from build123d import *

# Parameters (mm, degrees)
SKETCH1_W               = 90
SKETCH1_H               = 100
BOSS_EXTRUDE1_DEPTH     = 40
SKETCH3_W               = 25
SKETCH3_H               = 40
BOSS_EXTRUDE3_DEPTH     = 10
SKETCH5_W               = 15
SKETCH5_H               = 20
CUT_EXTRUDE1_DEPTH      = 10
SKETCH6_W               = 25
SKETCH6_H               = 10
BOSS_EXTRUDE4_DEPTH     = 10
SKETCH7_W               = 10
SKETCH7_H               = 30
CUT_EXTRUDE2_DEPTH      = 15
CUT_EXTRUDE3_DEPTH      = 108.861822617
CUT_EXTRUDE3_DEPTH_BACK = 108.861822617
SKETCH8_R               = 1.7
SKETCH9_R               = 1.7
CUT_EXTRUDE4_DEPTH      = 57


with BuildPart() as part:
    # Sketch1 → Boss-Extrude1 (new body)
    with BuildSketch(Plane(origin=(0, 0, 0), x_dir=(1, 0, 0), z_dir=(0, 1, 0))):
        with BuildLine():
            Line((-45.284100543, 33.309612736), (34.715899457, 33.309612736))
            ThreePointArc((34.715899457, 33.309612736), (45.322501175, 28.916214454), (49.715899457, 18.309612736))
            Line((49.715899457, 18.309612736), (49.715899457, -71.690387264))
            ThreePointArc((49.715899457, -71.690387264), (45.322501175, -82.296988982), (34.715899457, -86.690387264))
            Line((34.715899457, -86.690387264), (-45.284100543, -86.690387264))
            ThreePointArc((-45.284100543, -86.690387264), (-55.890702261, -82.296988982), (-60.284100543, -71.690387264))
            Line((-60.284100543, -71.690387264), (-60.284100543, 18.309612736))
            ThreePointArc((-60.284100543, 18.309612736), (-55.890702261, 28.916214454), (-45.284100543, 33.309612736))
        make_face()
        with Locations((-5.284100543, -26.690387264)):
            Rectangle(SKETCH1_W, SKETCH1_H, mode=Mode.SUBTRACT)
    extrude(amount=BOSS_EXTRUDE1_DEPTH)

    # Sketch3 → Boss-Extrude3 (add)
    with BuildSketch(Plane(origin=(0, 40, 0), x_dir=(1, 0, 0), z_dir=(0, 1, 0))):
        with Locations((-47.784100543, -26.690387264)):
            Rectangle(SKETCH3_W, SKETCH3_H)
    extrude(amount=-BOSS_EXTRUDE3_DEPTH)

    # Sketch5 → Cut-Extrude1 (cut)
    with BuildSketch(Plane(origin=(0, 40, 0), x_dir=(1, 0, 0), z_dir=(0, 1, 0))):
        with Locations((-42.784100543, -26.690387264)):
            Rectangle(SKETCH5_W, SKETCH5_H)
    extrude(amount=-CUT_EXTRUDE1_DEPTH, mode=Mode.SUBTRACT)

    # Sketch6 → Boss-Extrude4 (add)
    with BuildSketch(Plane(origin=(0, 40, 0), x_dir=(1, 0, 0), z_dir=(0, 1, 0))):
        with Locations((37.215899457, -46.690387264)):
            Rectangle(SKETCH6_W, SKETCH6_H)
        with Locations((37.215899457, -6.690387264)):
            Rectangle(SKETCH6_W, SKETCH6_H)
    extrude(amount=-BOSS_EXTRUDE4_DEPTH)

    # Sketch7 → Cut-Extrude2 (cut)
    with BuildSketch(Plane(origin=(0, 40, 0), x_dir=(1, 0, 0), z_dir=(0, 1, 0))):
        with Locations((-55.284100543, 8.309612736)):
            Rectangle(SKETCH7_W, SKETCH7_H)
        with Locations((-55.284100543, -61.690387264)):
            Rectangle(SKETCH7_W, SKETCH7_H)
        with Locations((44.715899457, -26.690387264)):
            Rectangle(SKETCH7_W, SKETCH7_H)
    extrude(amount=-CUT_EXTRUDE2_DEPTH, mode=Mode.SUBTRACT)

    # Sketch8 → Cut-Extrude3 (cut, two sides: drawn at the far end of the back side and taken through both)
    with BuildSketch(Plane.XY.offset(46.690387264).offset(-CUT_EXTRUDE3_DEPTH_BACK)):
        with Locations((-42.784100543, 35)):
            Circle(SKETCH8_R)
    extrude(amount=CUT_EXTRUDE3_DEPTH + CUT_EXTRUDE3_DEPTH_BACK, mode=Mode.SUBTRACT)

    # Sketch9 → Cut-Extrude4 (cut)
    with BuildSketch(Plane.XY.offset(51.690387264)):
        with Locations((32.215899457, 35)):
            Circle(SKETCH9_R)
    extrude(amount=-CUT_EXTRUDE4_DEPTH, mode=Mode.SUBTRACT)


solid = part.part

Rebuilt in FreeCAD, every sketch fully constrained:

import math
import FreeCAD as App
import Part
import Sketcher

V = App.Vector
Q = App.Units.Quantity

doc = App.newDocument("Part")
params = doc.addObject("Spreadsheet::Sheet", "Params")
for row, (alias, value) in enumerate([
    ("sketch1_radius", "15 mm"),
    ("sketch1_width", "80 mm"),
    ("sketch1_width2", "90 mm"),
    ("sketch1_height", "100 mm"),
    ("pad1_length", "40 mm"),
    ("sketch2_width", "25 mm"),
    ("sketch2_height", "40 mm"),
    ("pad2_length", "10 mm"),
    ("sketch3_width", "15 mm"),
    ("sketch3_height", "20 mm"),
    ("pocket1_length", "10 mm"),
    ("sketch4_width", "25 mm"),
    ("sketch4_height", "10 mm"),
    ("pad3_length", "10 mm"),
    ("sketch5_width", "10 mm"),
    ("sketch5_height", "30 mm"),
    ("pocket2_length", "15 mm"),
    ("sketch6_diameter", "3.4 mm"),
    ("sketch7_diameter", "3.4 mm"),
    ("pocket4_length", "57 mm"),
], start=1):
    params.set(f"A{row}", alias)
    params.set(f"B{row}", "=" + value)
    params.setAlias(f"B{row}", alias)

body = doc.addObject("PartDesign::Body", "Body")

# Sketch on XZ plane
sketch1 = body.newObject("Sketcher::SketchObject", "Sketch")
sketch1.AttachmentSupport = (doc.getObject("XZ_Plane"), [""])
sketch1.MapMode = "FlatFace"
sketch1.addGeometry([
    Part.LineSegment(V(34.715899, -33.309613, 0), V(-45.284101, -33.309613, 0)),  # 0
    Part.ArcOfCircle(Part.Circle(V(-45.284101, -18.309613, 0), V(0, 0, 1), 15), math.radians(180), math.radians(270)),  # 1
    Part.LineSegment(V(-60.284101, -18.309613, 0), V(-60.284101, 71.690387, 0)),  # 2
    Part.ArcOfCircle(Part.Circle(V(-45.284101, 71.690387, 0), V(0, 0, 1), 15), math.radians(90), math.radians(180)),  # 3
    Part.LineSegment(V(-45.284101, 86.690387, 0), V(34.715899, 86.690387, 0)),  # 4
    Part.ArcOfCircle(Part.Circle(V(34.715899, 71.690387, 0), V(0, 0, 1), 15), math.radians(0), math.radians(90)),  # 5
    Part.LineSegment(V(49.715899, 71.690387, 0), V(49.715899, -18.309613, 0)),  # 6
    Part.ArcOfCircle(Part.Circle(V(34.715899, -18.309613, 0), V(0, 0, 1), 15), math.radians(-90), math.radians(0)),  # 7
    Part.LineSegment(V(-50.284101, 76.690387, 0), V(-50.284101, -23.309613, 0)),  # 8
    Part.LineSegment(V(-50.284101, -23.309613, 0), V(39.715899, -23.309613, 0)),  # 9
    Part.LineSegment(V(39.715899, -23.309613, 0), V(39.715899, 76.690387, 0)),  # 10
    Part.LineSegment(V(39.715899, 76.690387, 0), V(-50.284101, 76.690387, 0)),  # 11
], False)
sketch1.addConstraint([
    Sketcher.Constraint("Tangent", 0, 2, 1, 2),
    Sketcher.Constraint("Tangent", 1, 1, 2, 1),
    Sketcher.Constraint("Tangent", 2, 2, 3, 2),
    Sketcher.Constraint("Tangent", 3, 1, 4, 1),
    Sketcher.Constraint("Tangent", 4, 2, 5, 2),
    Sketcher.Constraint("Tangent", 5, 1, 6, 1),
    Sketcher.Constraint("Tangent", 6, 2, 7, 2),
    Sketcher.Constraint("Tangent", 7, 1, 0, 1),
    Sketcher.Constraint("Coincident", 8, 2, 9, 1),
    Sketcher.Constraint("Coincident", 9, 2, 10, 1),
    Sketcher.Constraint("Coincident", 10, 2, 11, 1),
    Sketcher.Constraint("Coincident", 11, 2, 8, 1),
    Sketcher.Constraint("Horizontal", 0),
    Sketcher.Constraint("Vertical", 2),
    Sketcher.Constraint("Horizontal", 4),
    Sketcher.Constraint("Vertical", 6),
    Sketcher.Constraint("Vertical", 8),
    Sketcher.Constraint("Horizontal", 9),
    Sketcher.Constraint("Vertical", 10),
    Sketcher.Constraint("Horizontal", 11),
    Sketcher.Constraint("Equal", 1, 3),
    Sketcher.Constraint("Equal", 3, 5),
    Sketcher.Constraint("Equal", 5, 7),
    Sketcher.Constraint("Equal", 11, 2),
    Sketcher.Constraint("Radius", 1, Q("15 mm")),
    Sketcher.Constraint("DistanceX", 0, 2, 0, 1, Q("80 mm")),
    Sketcher.Constraint("DistanceX", 9, 1, 9, 2, Q("90 mm")),
    Sketcher.Constraint("DistanceY", 8, 2, 8, 1, Q("100 mm")),
    Sketcher.Constraint("DistanceX", 8, 2, 1, 3, Q("5 mm")),
    Sketcher.Constraint("DistanceY", 8, 2, 1, 3, Q("5 mm")),
    Sketcher.Constraint("DistanceX", 1, 3, -1, 1, Q("45.284101 mm")),
    Sketcher.Constraint("DistanceY", 1, 3, -1, 1, Q("18.309613 mm")),
])
sketch1.setExpression("Constraints[24]", "Params.sketch1_radius")
sketch1.setExpression("Constraints[25]", "Params.sketch1_width")
sketch1.setExpression("Constraints[26]", "Params.sketch1_width2")
sketch1.setExpression("Constraints[27]", "Params.sketch1_height")
pad1 = body.newObject("PartDesign::Pad", "Pad")
pad1.Profile = sketch1
pad1.setExpression("Length", "Params.pad1_length")
pad1.Reversed = True

# Sketch on XZ plane
sketch2 = body.newObject("Sketcher::SketchObject", "Sketch001")
sketch2.AttachmentSupport = (doc.getObject("XZ_Plane"), [""])
sketch2.MapMode = "FlatFace"
sketch2.AttachmentOffset = App.Placement(V(0, 0, -40), App.Rotation())
sketch2.addGeometry([
    Part.LineSegment(V(-60.284101, 6.690387, 0), V(-60.284101, 46.690387, 0)),
    Part.LineSegment(V(-60.284101, 46.690387, 0), V(-35.284101, 46.690387, 0)),
    Part.LineSegment(V(-35.284101, 46.690387, 0), V(-35.284101, 6.690387, 0)),
    Part.LineSegment(V(-35.284101, 6.690387, 0), V(-60.284101, 6.690387, 0)),
], False)
sketch2.addConstraint([
    Sketcher.Constraint("Coincident", 0, 2, 1, 1),
    Sketcher.Constraint("Coincident", 1, 2, 2, 1),
    Sketcher.Constraint("Coincident", 2, 2, 3, 1),
    Sketcher.Constraint("Coincident", 3, 2, 0, 1),
    Sketcher.Constraint("Vertical", 0),
    Sketcher.Constraint("Horizontal", 1),
    Sketcher.Constraint("Vertical", 2),
    Sketcher.Constraint("Horizontal", 3),
    Sketcher.Constraint("DistanceX", 1, 1, 1, 2, Q("25 mm")),
    Sketcher.Constraint("DistanceY", 0, 1, 0, 2, Q("40 mm")),
    Sketcher.Constraint("DistanceX", 0, 2, -1, 1, Q("60.284101 mm")),
    Sketcher.Constraint("DistanceY", -1, 1, 0, 2, Q("46.690387 mm")),
])
sketch2.setExpression("Constraints[8]", "Params.sketch2_width")
sketch2.setExpression("Constraints[9]", "Params.sketch2_height")
pad2 = body.newObject("PartDesign::Pad", "Pad001")
pad2.Profile = sketch2
pad2.setExpression("Length", "Params.pad2_length")

# Sketch on XZ plane
sketch3 = body.newObject("Sketcher::SketchObject", "Sketch002")
sketch3.AttachmentSupport = (doc.getObject("XZ_Plane"), [""])
sketch3.MapMode = "FlatFace"
sketch3.AttachmentOffset = App.Placement(V(0, 0, -40), App.Rotation())
sketch3.addGeometry([
    Part.LineSegment(V(-50.284101, 16.690387, 0), V(-50.284101, 36.690387, 0)),
    Part.LineSegment(V(-50.284101, 36.690387, 0), V(-35.284101, 36.690387, 0)),
    Part.LineSegment(V(-35.284101, 36.690387, 0), V(-35.284101, 16.690387, 0)),
    Part.LineSegment(V(-35.284101, 16.690387, 0), V(-50.284101, 16.690387, 0)),
], False)
sketch3.addConstraint([
    Sketcher.Constraint("Coincident", 0, 2, 1, 1),
    Sketcher.Constraint("Coincident", 1, 2, 2, 1),
    Sketcher.Constraint("Coincident", 2, 2, 3, 1),
    Sketcher.Constraint("Coincident", 3, 2, 0, 1),
    Sketcher.Constraint("Vertical", 0),
    Sketcher.Constraint("Horizontal", 1),
    Sketcher.Constraint("Vertical", 2),
    Sketcher.Constraint("Horizontal", 3),
    Sketcher.Constraint("DistanceX", 1, 1, 1, 2, Q("15 mm")),
    Sketcher.Constraint("DistanceY", 0, 1, 0, 2, Q("20 mm")),
    Sketcher.Constraint("DistanceX", 0, 2, -1, 1, Q("50.284101 mm")),
    Sketcher.Constraint("DistanceY", -1, 1, 0, 2, Q("36.690387 mm")),
])
sketch3.setExpression("Constraints[8]", "Params.sketch3_width")
sketch3.setExpression("Constraints[9]", "Params.sketch3_height")
pocket1 = body.newObject("PartDesign::Pocket", "Pocket")
pocket1.Profile = sketch3
pocket1.setExpression("Length", "Params.pocket1_length")
pocket1.Reversed = True

# Sketch on XZ plane
sketch4 = body.newObject("Sketcher::SketchObject", "Sketch003")
sketch4.AttachmentSupport = (doc.getObject("XZ_Plane"), [""])
sketch4.MapMode = "FlatFace"
sketch4.AttachmentOffset = App.Placement(V(0, 0, -40), App.Rotation())
sketch4.addGeometry([
    Part.LineSegment(V(24.715899, 41.690387, 0), V(24.715899, 51.690387, 0)),  # 0
    Part.LineSegment(V(24.715899, 51.690387, 0), V(49.715899, 51.690387, 0)),  # 1
    Part.LineSegment(V(49.715899, 51.690387, 0), V(49.715899, 41.690387, 0)),  # 2
    Part.LineSegment(V(49.715899, 41.690387, 0), V(24.715899, 41.690387, 0)),  # 3
    Part.LineSegment(V(24.715899, 1.690387, 0), V(24.715899, 11.690387, 0)),  # 4
    Part.LineSegment(V(24.715899, 11.690387, 0), V(49.715899, 11.690387, 0)),  # 5
    Part.LineSegment(V(49.715899, 11.690387, 0), V(49.715899, 1.690387, 0)),  # 6
    Part.LineSegment(V(49.715899, 1.690387, 0), V(24.715899, 1.690387, 0)),  # 7
], False)
sketch4.addConstraint([
    Sketcher.Constraint("Coincident", 0, 2, 1, 1),
    Sketcher.Constraint("Coincident", 1, 2, 2, 1),
    Sketcher.Constraint("Coincident", 2, 2, 3, 1),
    Sketcher.Constraint("Coincident", 3, 2, 0, 1),
    Sketcher.Constraint("Coincident", 4, 2, 5, 1),
    Sketcher.Constraint("Coincident", 5, 2, 6, 1),
    Sketcher.Constraint("Coincident", 6, 2, 7, 1),
    Sketcher.Constraint("Coincident", 7, 2, 4, 1),
    Sketcher.Constraint("Vertical", 0),
    Sketcher.Constraint("Horizontal", 1),
    Sketcher.Constraint("Vertical", 2),
    Sketcher.Constraint("Horizontal", 3),
    Sketcher.Constraint("Vertical", 4),
    Sketcher.Constraint("Horizontal", 5),
    Sketcher.Constraint("Vertical", 6),
    Sketcher.Constraint("Horizontal", 7),
    Sketcher.Constraint("Vertical", 3, 2, 4, 2),
    Sketcher.Constraint("Vertical", 2, 2, 5, 2),
    Sketcher.Constraint("Equal", 2, 4),
    Sketcher.Constraint("DistanceX", 1, 1, 1, 2, Q("25 mm")),
    Sketcher.Constraint("DistanceY", 0, 1, 0, 2, Q("10 mm")),
    Sketcher.Constraint("DistanceY", 4, 2, 3, 2, Q("30 mm")),
    Sketcher.Constraint("DistanceX", -1, 1, 0, 2, Q("24.715899 mm")),
    Sketcher.Constraint("DistanceY", -1, 1, 0, 2, Q("51.690387 mm")),
])
sketch4.setExpression("Constraints[19]", "Params.sketch4_width")
sketch4.setExpression("Constraints[20]", "Params.sketch4_height")
pad3 = body.newObject("PartDesign::Pad", "Pad002")
pad3.Profile = sketch4
pad3.setExpression("Length", "Params.pad3_length")

# Sketch on XZ plane
sketch5 = body.newObject("Sketcher::SketchObject", "Sketch004")
sketch5.AttachmentSupport = (doc.getObject("XZ_Plane"), [""])
sketch5.MapMode = "FlatFace"
sketch5.AttachmentOffset = App.Placement(V(0, 0, -40), App.Rotation())
sketch5.addGeometry([
    Part.LineSegment(V(-60.284101, -23.309613, 0), V(-60.284101, 6.690387, 0)),  # 0
    Part.LineSegment(V(-60.284101, 6.690387, 0), V(-50.284101, 6.690387, 0)),  # 1
    Part.LineSegment(V(-50.284101, 6.690387, 0), V(-50.284101, -23.309613, 0)),  # 2
    Part.LineSegment(V(-50.284101, -23.309613, 0), V(-60.284101, -23.309613, 0)),  # 3
    Part.LineSegment(V(-60.284101, 46.690387, 0), V(-60.284101, 76.690387, 0)),  # 4
    Part.LineSegment(V(-60.284101, 76.690387, 0), V(-50.284101, 76.690387, 0)),  # 5
    Part.LineSegment(V(-50.284101, 76.690387, 0), V(-50.284101, 46.690387, 0)),  # 6
    Part.LineSegment(V(-50.284101, 46.690387, 0), V(-60.284101, 46.690387, 0)),  # 7
    Part.LineSegment(V(39.715899, 11.690387, 0), V(39.715899, 41.690387, 0)),  # 8
    Part.LineSegment(V(39.715899, 41.690387, 0), V(49.715899, 41.690387, 0)),  # 9
    Part.LineSegment(V(49.715899, 41.690387, 0), V(49.715899, 11.690387, 0)),  # 10
    Part.LineSegment(V(49.715899, 11.690387, 0), V(39.715899, 11.690387, 0)),  # 11
], False)
sketch5.addConstraint([
    Sketcher.Constraint("Coincident", 0, 2, 1, 1),
    Sketcher.Constraint("Coincident", 1, 2, 2, 1),
    Sketcher.Constraint("Coincident", 2, 2, 3, 1),
    Sketcher.Constraint("Coincident", 3, 2, 0, 1),
    Sketcher.Constraint("Coincident", 4, 2, 5, 1),
    Sketcher.Constraint("Coincident", 5, 2, 6, 1),
    Sketcher.Constraint("Coincident", 6, 2, 7, 1),
    Sketcher.Constraint("Coincident", 7, 2, 4, 1),
    Sketcher.Constraint("Coincident", 8, 2, 9, 1),
    Sketcher.Constraint("Coincident", 9, 2, 10, 1),
    Sketcher.Constraint("Coincident", 10, 2, 11, 1),
    Sketcher.Constraint("Coincident", 11, 2, 8, 1),
    Sketcher.Constraint("Vertical", 0),
    Sketcher.Constraint("Horizontal", 1),
    Sketcher.Constraint("Vertical", 2),
    Sketcher.Constraint("Horizontal", 3),
    Sketcher.Constraint("Vertical", 4),
    Sketcher.Constraint("Horizontal", 5),
    Sketcher.Constraint("Vertical", 6),
    Sketcher.Constraint("Horizontal", 7),
    Sketcher.Constraint("Vertical", 8),
    Sketcher.Constraint("Horizontal", 9),
    Sketcher.Constraint("Vertical", 10),
    Sketcher.Constraint("Horizontal", 11),
    Sketcher.Constraint("Vertical", 3, 2, 4, 2),
    Sketcher.Constraint("Vertical", 2, 2, 5, 2),
    Sketcher.Constraint("Equal", 7, 9),
    Sketcher.Constraint("Equal", 2, 4),
    Sketcher.Constraint("Equal", 6, 8),
    Sketcher.Constraint("DistanceX", 1, 1, 1, 2, Q("10 mm")),
    Sketcher.Constraint("DistanceY", 0, 1, 0, 2, Q("30 mm")),
    Sketcher.Constraint("DistanceY", 0, 2, 4, 2, Q("70 mm")),
    Sketcher.Constraint("DistanceX", 6, 2, 8, 2, Q("90 mm")),
    Sketcher.Constraint("DistanceY", 8, 2, 6, 2, Q("5 mm")),
    Sketcher.Constraint("DistanceX", 0, 2, -1, 1, Q("60.284101 mm")),
    Sketcher.Constraint("DistanceY", -1, 1, 0, 2, Q("6.690387 mm")),
])
sketch5.setExpression("Constraints[29]", "Params.sketch5_width")
sketch5.setExpression("Constraints[30]", "Params.sketch5_height")
pocket2 = body.newObject("PartDesign::Pocket", "Pocket001")
pocket2.Profile = sketch5
pocket2.setExpression("Length", "Params.pocket2_length")
pocket2.Reversed = True

# Sketch on XY plane
sketch6 = body.newObject("Sketcher::SketchObject", "Sketch005")
sketch6.AttachmentSupport = (doc.getObject("XY_Plane"), [""])
sketch6.MapMode = "FlatFace"
sketch6.AttachmentOffset = App.Placement(V(0, 0, 46.690387), App.Rotation())
sketch6.addGeometry(Part.Circle(V(-42.784101, 35, 0), V(0, 0, 1), 1.7), False)
sketch6.addConstraint([
    Sketcher.Constraint("Diameter", 0, Q("3.4 mm")),
    Sketcher.Constraint("DistanceY", -1, 1, 0, 3, Q("35 mm")),
    Sketcher.Constraint("DistanceX", 0, 3, -1, 1, Q("42.784101 mm")),
])
sketch6.setExpression("Constraints[0]", "Params.sketch6_diameter")
pocket3 = body.newObject("PartDesign::Pocket", "Pocket002")
pocket3.Profile = sketch6
pocket3.Type = "ThroughAll"
pocket3.Midplane = True

# Sketch on XY plane
sketch7 = body.newObject("Sketcher::SketchObject", "Sketch006")
sketch7.AttachmentSupport = (doc.getObject("XY_Plane"), [""])
sketch7.MapMode = "FlatFace"
sketch7.AttachmentOffset = App.Placement(V(0, 0, 51.690387), App.Rotation())
sketch7.addGeometry(Part.Circle(V(32.215899, 35, 0), V(0, 0, 1), 1.7), False)
sketch7.addConstraint([
    Sketcher.Constraint("Diameter", 0, Q("3.4 mm")),
    Sketcher.Constraint("DistanceY", -1, 1, 0, 3, Q("35 mm")),
    Sketcher.Constraint("DistanceX", -1, 1, 0, 3, Q("32.215899 mm")),
])
sketch7.setExpression("Constraints[0]", "Params.sketch7_diameter")
pocket4 = body.newObject("PartDesign::Pocket", "Pocket003")
pocket4.Profile = sketch7
pocket4.setExpression("Length", "Params.pocket4_length")

doc.recompute()
